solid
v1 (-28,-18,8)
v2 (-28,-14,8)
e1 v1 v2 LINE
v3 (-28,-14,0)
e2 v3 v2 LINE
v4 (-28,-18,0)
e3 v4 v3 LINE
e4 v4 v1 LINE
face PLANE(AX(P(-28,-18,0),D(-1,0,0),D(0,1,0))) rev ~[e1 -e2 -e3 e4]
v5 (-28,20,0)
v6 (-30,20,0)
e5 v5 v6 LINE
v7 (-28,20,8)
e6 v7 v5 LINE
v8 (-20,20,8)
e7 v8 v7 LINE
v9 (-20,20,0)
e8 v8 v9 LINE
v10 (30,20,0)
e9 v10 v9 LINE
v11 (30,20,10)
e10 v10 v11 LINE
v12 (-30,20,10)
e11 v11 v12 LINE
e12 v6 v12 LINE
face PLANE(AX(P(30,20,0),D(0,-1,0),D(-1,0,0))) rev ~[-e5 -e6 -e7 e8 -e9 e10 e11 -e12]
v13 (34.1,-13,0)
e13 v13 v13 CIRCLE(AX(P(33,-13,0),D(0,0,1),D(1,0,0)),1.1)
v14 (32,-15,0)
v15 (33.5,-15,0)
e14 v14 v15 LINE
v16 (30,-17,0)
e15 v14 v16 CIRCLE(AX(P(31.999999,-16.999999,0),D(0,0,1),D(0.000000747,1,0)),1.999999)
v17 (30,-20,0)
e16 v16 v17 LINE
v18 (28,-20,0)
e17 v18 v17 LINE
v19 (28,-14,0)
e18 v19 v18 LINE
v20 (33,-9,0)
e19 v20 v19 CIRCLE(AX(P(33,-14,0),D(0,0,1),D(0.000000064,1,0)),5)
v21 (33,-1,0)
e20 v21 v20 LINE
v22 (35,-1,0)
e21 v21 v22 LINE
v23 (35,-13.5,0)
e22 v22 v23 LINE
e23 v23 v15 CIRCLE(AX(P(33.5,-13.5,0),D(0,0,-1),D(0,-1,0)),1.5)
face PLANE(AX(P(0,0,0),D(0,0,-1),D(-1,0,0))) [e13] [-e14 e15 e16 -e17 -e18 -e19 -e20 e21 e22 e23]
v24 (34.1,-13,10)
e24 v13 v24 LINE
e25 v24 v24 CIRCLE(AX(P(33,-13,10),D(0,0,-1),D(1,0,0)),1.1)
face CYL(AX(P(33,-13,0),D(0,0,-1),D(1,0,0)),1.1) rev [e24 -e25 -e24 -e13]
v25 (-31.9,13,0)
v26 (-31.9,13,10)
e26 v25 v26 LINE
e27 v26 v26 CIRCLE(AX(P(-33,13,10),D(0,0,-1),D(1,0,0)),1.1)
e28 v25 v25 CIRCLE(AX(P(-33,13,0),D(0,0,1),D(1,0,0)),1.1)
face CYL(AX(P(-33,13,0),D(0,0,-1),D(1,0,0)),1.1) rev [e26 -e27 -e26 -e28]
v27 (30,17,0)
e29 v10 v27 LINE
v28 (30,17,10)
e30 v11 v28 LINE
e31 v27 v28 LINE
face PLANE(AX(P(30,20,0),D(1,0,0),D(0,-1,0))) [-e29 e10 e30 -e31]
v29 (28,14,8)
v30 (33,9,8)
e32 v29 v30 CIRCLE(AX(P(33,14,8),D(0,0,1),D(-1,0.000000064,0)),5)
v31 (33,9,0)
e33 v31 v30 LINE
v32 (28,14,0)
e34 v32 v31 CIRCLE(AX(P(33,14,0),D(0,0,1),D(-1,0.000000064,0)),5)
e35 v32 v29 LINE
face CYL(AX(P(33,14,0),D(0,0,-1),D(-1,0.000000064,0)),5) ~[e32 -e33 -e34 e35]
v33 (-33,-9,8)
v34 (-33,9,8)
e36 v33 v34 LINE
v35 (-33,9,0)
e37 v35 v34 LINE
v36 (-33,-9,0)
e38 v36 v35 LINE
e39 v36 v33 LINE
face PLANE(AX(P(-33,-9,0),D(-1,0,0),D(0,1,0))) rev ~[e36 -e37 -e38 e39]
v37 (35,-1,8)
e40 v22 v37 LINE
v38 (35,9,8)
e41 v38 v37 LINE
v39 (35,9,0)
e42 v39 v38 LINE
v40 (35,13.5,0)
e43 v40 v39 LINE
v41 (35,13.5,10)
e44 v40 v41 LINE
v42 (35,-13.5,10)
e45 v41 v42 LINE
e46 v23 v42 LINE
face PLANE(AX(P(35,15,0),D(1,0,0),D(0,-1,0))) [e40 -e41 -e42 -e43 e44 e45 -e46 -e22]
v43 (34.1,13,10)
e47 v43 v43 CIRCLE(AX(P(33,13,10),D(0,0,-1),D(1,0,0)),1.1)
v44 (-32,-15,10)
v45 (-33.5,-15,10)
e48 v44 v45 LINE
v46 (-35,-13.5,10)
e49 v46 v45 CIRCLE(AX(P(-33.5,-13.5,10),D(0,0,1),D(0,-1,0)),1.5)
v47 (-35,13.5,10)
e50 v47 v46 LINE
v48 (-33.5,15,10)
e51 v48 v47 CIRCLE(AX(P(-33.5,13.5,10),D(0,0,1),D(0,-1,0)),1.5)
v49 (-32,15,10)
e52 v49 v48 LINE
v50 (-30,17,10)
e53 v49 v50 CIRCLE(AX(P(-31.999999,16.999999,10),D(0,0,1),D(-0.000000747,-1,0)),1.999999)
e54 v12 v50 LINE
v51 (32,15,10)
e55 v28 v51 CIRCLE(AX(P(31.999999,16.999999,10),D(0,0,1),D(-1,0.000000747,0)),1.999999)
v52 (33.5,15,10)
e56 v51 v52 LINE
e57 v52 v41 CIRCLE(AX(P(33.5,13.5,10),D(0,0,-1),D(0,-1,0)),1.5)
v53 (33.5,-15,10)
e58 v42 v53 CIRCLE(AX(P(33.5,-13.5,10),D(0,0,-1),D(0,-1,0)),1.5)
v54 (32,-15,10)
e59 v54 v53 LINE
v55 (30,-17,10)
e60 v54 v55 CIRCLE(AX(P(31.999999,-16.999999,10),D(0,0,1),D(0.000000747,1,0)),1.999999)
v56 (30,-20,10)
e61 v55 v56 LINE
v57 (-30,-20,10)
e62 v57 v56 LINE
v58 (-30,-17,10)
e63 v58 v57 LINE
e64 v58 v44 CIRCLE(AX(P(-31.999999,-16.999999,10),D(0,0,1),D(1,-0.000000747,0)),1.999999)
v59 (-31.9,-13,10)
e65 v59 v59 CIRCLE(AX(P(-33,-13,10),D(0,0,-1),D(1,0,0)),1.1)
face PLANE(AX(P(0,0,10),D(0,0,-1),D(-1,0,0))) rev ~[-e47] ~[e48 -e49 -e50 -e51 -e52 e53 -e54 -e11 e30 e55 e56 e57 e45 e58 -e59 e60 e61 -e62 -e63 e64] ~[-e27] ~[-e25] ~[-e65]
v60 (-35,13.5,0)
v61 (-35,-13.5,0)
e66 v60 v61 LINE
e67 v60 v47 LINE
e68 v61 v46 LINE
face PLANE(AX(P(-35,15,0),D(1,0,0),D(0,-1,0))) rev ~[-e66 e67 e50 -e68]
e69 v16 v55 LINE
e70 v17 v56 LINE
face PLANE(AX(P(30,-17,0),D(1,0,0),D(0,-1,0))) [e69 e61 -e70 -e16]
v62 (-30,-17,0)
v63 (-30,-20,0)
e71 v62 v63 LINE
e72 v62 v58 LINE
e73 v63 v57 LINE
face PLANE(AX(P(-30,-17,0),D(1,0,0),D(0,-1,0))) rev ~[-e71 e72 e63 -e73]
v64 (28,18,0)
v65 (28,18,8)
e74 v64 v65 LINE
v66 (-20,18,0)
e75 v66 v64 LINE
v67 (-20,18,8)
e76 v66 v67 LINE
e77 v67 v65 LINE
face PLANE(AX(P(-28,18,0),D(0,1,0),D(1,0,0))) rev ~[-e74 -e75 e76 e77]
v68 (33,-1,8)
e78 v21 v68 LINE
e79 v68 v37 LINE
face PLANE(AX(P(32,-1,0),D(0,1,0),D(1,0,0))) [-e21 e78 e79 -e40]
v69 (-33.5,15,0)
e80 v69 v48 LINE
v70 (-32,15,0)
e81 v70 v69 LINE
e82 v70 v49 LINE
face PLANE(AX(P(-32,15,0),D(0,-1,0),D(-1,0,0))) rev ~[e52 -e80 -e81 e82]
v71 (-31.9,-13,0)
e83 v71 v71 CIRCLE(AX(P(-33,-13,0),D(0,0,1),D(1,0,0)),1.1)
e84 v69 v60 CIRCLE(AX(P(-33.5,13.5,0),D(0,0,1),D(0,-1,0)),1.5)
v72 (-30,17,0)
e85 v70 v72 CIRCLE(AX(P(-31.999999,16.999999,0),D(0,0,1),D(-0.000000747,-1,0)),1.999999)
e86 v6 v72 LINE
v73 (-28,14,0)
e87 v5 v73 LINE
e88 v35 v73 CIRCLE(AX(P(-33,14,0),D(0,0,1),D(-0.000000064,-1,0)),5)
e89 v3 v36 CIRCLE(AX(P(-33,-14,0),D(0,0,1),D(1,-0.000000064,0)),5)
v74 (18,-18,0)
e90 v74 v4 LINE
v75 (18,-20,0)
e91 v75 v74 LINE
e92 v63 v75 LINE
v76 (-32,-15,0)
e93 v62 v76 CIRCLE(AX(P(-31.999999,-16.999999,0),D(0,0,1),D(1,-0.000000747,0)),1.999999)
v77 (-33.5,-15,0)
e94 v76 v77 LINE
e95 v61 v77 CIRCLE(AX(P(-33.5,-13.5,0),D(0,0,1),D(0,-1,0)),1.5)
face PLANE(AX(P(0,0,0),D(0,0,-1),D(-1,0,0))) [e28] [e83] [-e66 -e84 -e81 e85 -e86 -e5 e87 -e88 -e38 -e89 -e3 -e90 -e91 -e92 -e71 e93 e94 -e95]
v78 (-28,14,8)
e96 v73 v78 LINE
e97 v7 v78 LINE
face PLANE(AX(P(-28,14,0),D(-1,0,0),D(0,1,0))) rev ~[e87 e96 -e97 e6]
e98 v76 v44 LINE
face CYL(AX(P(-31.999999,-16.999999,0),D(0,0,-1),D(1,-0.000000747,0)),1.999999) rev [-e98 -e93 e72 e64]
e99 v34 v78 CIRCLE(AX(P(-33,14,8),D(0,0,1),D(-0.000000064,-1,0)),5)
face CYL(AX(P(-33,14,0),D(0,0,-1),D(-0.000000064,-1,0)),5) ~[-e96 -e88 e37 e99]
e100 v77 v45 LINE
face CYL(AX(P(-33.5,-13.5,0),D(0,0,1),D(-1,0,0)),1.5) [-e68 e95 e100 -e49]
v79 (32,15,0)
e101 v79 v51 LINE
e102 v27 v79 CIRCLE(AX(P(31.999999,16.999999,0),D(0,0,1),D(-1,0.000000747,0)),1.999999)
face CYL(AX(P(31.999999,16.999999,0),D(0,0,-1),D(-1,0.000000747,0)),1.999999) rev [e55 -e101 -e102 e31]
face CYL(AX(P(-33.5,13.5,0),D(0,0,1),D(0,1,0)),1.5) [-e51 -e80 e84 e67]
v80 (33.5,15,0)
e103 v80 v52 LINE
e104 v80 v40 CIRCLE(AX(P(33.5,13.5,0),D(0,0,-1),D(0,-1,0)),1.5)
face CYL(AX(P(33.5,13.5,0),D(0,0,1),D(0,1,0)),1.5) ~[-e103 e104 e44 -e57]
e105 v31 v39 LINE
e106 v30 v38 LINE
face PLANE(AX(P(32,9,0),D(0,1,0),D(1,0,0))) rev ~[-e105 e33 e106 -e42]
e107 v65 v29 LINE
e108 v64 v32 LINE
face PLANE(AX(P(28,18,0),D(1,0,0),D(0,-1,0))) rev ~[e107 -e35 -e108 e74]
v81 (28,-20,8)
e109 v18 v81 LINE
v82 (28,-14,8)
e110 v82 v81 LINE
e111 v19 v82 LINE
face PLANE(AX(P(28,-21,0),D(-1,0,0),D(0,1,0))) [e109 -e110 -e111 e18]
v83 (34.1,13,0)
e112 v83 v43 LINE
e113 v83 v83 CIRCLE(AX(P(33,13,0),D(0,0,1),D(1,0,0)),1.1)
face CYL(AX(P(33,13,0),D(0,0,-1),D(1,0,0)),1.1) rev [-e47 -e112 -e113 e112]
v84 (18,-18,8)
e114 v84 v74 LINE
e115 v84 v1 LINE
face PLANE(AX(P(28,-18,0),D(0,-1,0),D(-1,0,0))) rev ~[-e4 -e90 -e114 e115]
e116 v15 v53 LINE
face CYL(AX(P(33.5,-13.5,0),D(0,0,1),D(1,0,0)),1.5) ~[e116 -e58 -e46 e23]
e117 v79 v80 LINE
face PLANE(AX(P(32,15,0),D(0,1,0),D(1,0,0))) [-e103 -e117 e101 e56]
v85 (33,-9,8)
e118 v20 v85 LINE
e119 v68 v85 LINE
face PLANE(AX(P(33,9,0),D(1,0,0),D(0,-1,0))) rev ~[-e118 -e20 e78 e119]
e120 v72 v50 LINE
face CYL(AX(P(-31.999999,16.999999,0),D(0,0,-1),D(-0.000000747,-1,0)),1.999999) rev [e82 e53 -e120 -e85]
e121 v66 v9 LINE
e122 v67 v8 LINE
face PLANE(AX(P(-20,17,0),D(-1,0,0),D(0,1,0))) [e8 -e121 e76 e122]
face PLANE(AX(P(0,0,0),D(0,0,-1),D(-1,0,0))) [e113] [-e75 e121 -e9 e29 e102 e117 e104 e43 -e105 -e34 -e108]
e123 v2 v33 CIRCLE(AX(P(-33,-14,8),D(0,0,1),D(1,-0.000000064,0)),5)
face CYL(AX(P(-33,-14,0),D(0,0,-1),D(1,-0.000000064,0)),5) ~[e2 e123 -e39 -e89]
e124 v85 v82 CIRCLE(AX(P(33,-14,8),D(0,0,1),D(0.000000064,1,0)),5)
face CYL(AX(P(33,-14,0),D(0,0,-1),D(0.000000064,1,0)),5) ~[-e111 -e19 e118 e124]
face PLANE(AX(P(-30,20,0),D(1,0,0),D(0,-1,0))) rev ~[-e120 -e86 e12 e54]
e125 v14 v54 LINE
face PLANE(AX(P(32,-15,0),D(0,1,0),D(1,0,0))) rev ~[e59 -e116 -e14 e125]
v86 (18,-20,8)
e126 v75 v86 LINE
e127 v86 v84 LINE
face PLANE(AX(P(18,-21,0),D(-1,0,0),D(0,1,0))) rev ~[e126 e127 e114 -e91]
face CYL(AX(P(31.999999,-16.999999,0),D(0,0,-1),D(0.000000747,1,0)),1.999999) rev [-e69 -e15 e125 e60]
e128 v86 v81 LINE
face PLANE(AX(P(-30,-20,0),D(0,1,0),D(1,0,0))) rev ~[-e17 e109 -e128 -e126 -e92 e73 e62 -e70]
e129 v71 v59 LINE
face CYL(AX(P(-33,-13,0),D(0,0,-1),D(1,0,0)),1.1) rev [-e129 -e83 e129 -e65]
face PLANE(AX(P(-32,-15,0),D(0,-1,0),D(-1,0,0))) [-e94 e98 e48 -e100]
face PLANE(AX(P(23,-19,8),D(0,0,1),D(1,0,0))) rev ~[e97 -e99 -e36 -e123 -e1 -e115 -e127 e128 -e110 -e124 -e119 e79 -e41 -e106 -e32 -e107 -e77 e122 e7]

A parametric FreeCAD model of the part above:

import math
import FreeCAD as App
import Part
import Sketcher

V = App.Vector


def edges_at(feature, points):
    """Names of the edges that pass closest to the given points."""
    edges = feature.Shape.Edges
    near = lambda p: min(range(len(edges)), key=lambda i: edges[i].distToShape(Part.Vertex(*p))[0])
    return sorted({f"Edge{near(p) + 1}" for p in points})

doc = App.newDocument("Part")
body = doc.addObject("PartDesign::Body", "Body")

# Sketch on XY plane
sketch1 = body.newObject("Sketcher::SketchObject", "Sketch")
sketch1.AttachmentSupport = (doc.getObject("XY_Plane"), [""])
sketch1.MapMode = "FlatFace"
sketch1.addGeometry([
    Part.ArcOfCircle(Part.Circle(V(-32, -17, 0), V(0, 0, 1), 2), math.radians(0), math.radians(90)),  # 0
    Part.LineSegment(V(-30, -17, 0), V(-30, -20, 0)),  # 1
    Part.LineSegment(V(-30, -20, 0), V(30, -20, 0)),  # 2
    Part.LineSegment(V(30, -20, 0), V(30, -17, 0)),  # 3
    Part.ArcOfCircle(Part.Circle(V(32, -17, 0), V(0, 0, 1), 2), math.radians(90), math.radians(180)),  # 4
    Part.LineSegment(V(32, -15, 0), V(35, -15, 0)),  # 5
    Part.LineSegment(V(35, -15, 0), V(35, 15, 0)),  # 6
    Part.LineSegment(V(35, 15, 0), V(32, 15, 0)),  # 7
    Part.ArcOfCircle(Part.Circle(V(32, 17, 0), V(0, 0, 1), 2), math.radians(180), math.radians(270)),  # 8
    Part.LineSegment(V(30, 17, 0), V(30, 20, 0)),  # 9
    Part.LineSegment(V(30, 20, 0), V(-30, 20, 0)),  # 10
    Part.LineSegment(V(-30, 20, 0), V(-30, 17, 0)),  # 11
    Part.ArcOfCircle(Part.Circle(V(-32, 17, 0), V(0, 0, 1), 2), math.radians(-90), math.radians(0)),  # 12
    Part.LineSegment(V(-32, 15, 0), V(-35, 15, 0)),  # 13
    Part.LineSegment(V(-35, 15, 0), V(-35, -15, 0)),  # 14
    Part.LineSegment(V(-35, -15, 0), V(-32, -15, 0)),  # 15
], False)
sketch1.addConstraint([
    Sketcher.Constraint("Tangent", 0, 1, 1, 1),
    Sketcher.Constraint("Coincident", 1, 2, 2, 1),
    Sketcher.Constraint("Coincident", 2, 2, 3, 1),
    Sketcher.Constraint("Tangent", 3, 2, 4, 2),
    Sketcher.Constraint("Tangent", 4, 1, 5, 1),
    Sketcher.Constraint("Coincident", 5, 2, 6, 1),
    Sketcher.Constraint("Coincident", 6, 2, 7, 1),
    Sketcher.Constraint("Tangent", 7, 2, 8, 2),
    Sketcher.Constraint("Tangent", 8, 1, 9, 1),
    Sketcher.Constraint("Coincident", 9, 2, 10, 1),
    Sketcher.Constraint("Coincident", 10, 2, 11, 1),
    Sketcher.Constraint("Tangent", 11, 2, 12, 2),
    Sketcher.Constraint("Tangent", 12, 1, 13, 1),
    Sketcher.Constraint("Coincident", 13, 2, 14, 1),
    Sketcher.Constraint("Coincident", 14, 2, 15, 1),
    Sketcher.Constraint("Tangent", 15, 2, 0, 2),
    Sketcher.Constraint("Vertical", 1),
    Sketcher.Constraint("Horizontal", 2),
    Sketcher.Constraint("Vertical", 3),
    Sketcher.Constraint("Horizontal", 5),
    Sketcher.Constraint("Vertical", 6),
    Sketcher.Constraint("Horizontal", 7),
    Sketcher.Constraint("Vertical", 9),
    Sketcher.Constraint("Horizontal", 10),
    Sketcher.Constraint("Vertical", 11),
    Sketcher.Constraint("Horizontal", 13),
    Sketcher.Constraint("Vertical", 14),
    Sketcher.Constraint("Horizontal", 15),
    Sketcher.Constraint("Equal", 0, 4),
    Sketcher.Constraint("Equal", 4, 8),
    Sketcher.Constraint("Equal", 8, 12),
    Sketcher.Constraint("Symmetric", 0, 3, 8, 3, -1, 1),
    Sketcher.Constraint("Symmetric", 4, 3, 12, 3, -1, 1),
    Sketcher.Constraint("Symmetric", 0, 3, 4, 3, -2),
    Sketcher.Constraint("Equal", 7, 13),
    Sketcher.Constraint("Equal", 15, 1),
    Sketcher.Constraint("Equal", 3, 9),
    Sketcher.Constraint("Radius", 0, 1.999999),
    Sketcher.Constraint("DistanceX", 2, 1, 2, 2, 60.0),
    Sketcher.Constraint("DistanceX", 5, 1, 5, 2, 3.0),
    Sketcher.Constraint("DistanceY", 6, 1, 6, 2, 30.0),
])
pad1 = body.newObject("PartDesign::Pad", "Pad")
pad1.Profile = sketch1
pad1.Length = 10

# Sketch on XY plane
sketch2 = body.newObject("Sketcher::SketchObject", "Sketch001")
sketch2.AttachmentSupport = (doc.getObject("XY_Plane"), [""])
sketch2.MapMode = "FlatFace"
sketch2.addGeometry([
    Part.Circle(V(33, 13, 0), V(0, 0, 1), 1.1),
    Part.Circle(V(33, -13, 0), V(0, 0, 1), 1.1),
    Part.Circle(V(-33, -13, 0), V(0, 0, 1), 1.1),
    Part.Circle(V(-33, 13, 0), V(0, 0, 1), 1.1),
], False)
sketch2.addConstraint([
    Sketcher.Constraint("Equal", 0, 1),
    Sketcher.Constraint("Equal", 1, 2),
    Sketcher.Constraint("Equal", 2, 3),
    Sketcher.Constraint("Symmetric", 0, 3, 2, 3, -1, 1),
    Sketcher.Constraint("Symmetric", 1, 3, 3, 3, -1, 1),
    Sketcher.Constraint("Symmetric", 1, 3, 2, 3, -2),
    Sketcher.Constraint("Diameter", 0, 2.2),
    Sketcher.Constraint("DistanceX", -1, 1, 0, 3, 33.0),
    Sketcher.Constraint("DistanceY", -1, 1, 0, 3, 13.0),
])
pocket1 = body.newObject("PartDesign::Pocket", "Pocket")
pocket1.Profile = sketch2
pocket1.Length = 25
pocket1.Reversed = True

# Sketch on XY plane
sketch3 = body.newObject("Sketcher::SketchObject", "Sketch002")
sketch3.AttachmentSupport = (doc.getObject("XY_Plane"), [""])
sketch3.MapMode = "FlatFace"
sketch3.addGeometry([
    Part.LineSegment(V(-28, -18, 0), V(28, -18, 0)),  # 0
    Part.LineSegment(V(28, -18, 0), V(28, -14, 0)),  # 1
    Part.ArcOfCircle(Part.Circle(V(33, -14, 0), V(0, 0, 1), 5), math.radians(90), math.radians(180)),  # 2
    Part.LineSegment(V(33, -9, 0), V(33, 9, 0)),  # 3
    Part.ArcOfCircle(Part.Circle(V(33, 14, 0), V(0, 0, 1), 5), math.radians(180), math.radians(270)),  # 4
    Part.LineSegment(V(28, 14, 0), V(28, 18, 0)),  # 5
    Part.LineSegment(V(28, 18, 0), V(-28, 18, 0)),  # 6
    Part.LineSegment(V(-28, 18, 0), V(-28, 14, 0)),  # 7
    Part.ArcOfCircle(Part.Circle(V(-33, 14, 0), V(0, 0, 1), 5), math.radians(-90), math.radians(0)),  # 8
    Part.LineSegment(V(-33, 9, 0), V(-33, -9, 0)),  # 9
    Part.ArcOfCircle(Part.Circle(V(-33, -14, 0), V(0, 0, 1), 5), math.radians(0), math.radians(90)),  # 10
    Part.LineSegment(V(-28, -14, 0), V(-28, -18, 0)),  # 11
], False)
sketch3.addConstraint([
    Sketcher.Constraint("Coincident", 0, 2, 1, 1),
    Sketcher.Constraint("Tangent", 1, 2, 2, 2),
    Sketcher.Constraint("Coincident", 2, 1, 3, 1),
    Sketcher.Constraint("Coincident", 3, 2, 4, 2),
    Sketcher.Constraint("Tangent", 4, 1, 5, 1),
    Sketcher.Constraint("Coincident", 5, 2, 6, 1),
    Sketcher.Constraint("Coincident", 6, 2, 7, 1),
    Sketcher.Constraint("Tangent", 7, 2, 8, 2),
    Sketcher.Constraint("Coincident", 8, 1, 9, 1),
    Sketcher.Constraint("Coincident", 9, 2, 10, 2),
    Sketcher.Constraint("Tangent", 10, 1, 11, 1),
    Sketcher.Constraint("Coincident", 11, 2, 0, 1),
    Sketcher.Constraint("Horizontal", 0),
    Sketcher.Constraint("Vertical", 1),
    Sketcher.Constraint("Vertical", 3),
    Sketcher.Constraint("Vertical", 5),
    Sketcher.Constraint("Horizontal", 6),
    Sketcher.Constraint("Vertical", 7),
    Sketcher.Constraint("Vertical", 9),
    Sketcher.Constraint("Vertical", 11),
    Sketcher.Constraint("Equal", 2, 4),
    Sketcher.Constraint("Equal", 4, 8),
    Sketcher.Constraint("Equal", 8, 10),
    Sketcher.Constraint("Symmetric", 2, 3, 8, 3, -1, 1),
    Sketcher.Constraint("Symmetric", 4, 3, 10, 3, -1, 1),
    Sketcher.Constraint("Symmetric", 4, 3, 8, 3, -2),
    Sketcher.Constraint("Vertical", 4, 3, 2, 1),
    Sketcher.Constraint("Vertical", 10, 3, 8, 1),
    Sketcher.Constraint("Equal", 1, 5),
    Sketcher.Constraint("Radius", 2, 5.0),
    Sketcher.Constraint("DistanceX", 0, 1, 0, 2, 56.0),
    Sketcher.Constraint("DistanceY", 1, 1, 1, 2, 4.0),
    Sketcher.Constraint("DistanceY", 3, 1, 3, 2, 18.0),
])
pocket2 = body.newObject("PartDesign::Pocket", "Pocket001")
pocket2.Profile = sketch3
pocket2.Length = 8
pocket2.Reversed = True

# Sketch on XY plane
sketch4 = body.newObject("Sketcher::SketchObject", "Sketch003")
sketch4.AttachmentSupport = (doc.getObject("XY_Plane"), [""])
sketch4.MapMode = "FlatFace"
sketch4.addGeometry([
    Part.LineSegment(V(-28, 21, 0), V(-28, 17, 0)),  # 0
    Part.LineSegment(V(-28, 17, 0), V(-20, 17, 0)),  # 1
    Part.LineSegment(V(-20, 17, 0), V(-20, 21, 0)),  # 2
    Part.LineSegment(V(-20, 21, 0), V(-28, 21, 0)),  # 3
    Part.LineSegment(V(18, -17, 0), V(18, -21, 0)),  # 4
    Part.LineSegment(V(18, -21, 0), V(28, -21, 0)),  # 5
    Part.LineSegment(V(28, -21, 0), V(28, -17, 0)),  # 6
    Part.LineSegment(V(28, -17, 0), V(18, -17, 0)),  # 7
    Part.LineSegment(V(32, 9, 0), V(32, -1, 0)),  # 8
    Part.LineSegment(V(32, -1, 0), V(36, -1, 0)),  # 9
    Part.LineSegment(V(36, -1, 0), V(36, 9, 0)),  # 10
    Part.LineSegment(V(36, 9, 0), V(32, 9, 0)),  # 11
], False)
sketch4.addConstraint([
    Sketcher.Constraint("Coincident", 0, 2, 1, 1),
    Sketcher.Constraint("Coincident", 1, 2, 2, 1),
    Sketcher.Constraint("Coincident", 2, 2, 3, 1),
    Sketcher.Constraint("Coincident", 3, 2, 0, 1),
    Sketcher.Constraint("Coincident", 4, 2, 5, 1),
    Sketcher.Constraint("Coincident", 5, 2, 6, 1),
    Sketcher.Constraint("Coincident", 6, 2, 7, 1),
    Sketcher.Constraint("Coincident", 7, 2, 4, 1),
    Sketcher.Constraint("Coincident", 8, 2, 9, 1),
    Sketcher.Constraint("Coincident", 9, 2, 10, 1),
    Sketcher.Constraint("Coincident", 10, 2, 11, 1),
    Sketcher.Constraint("Coincident", 11, 2, 8, 1),
    Sketcher.Constraint("Vertical", 0),
    Sketcher.Constraint("Horizontal", 1),
    Sketcher.Constraint("Vertical", 2),
    Sketcher.Constraint("Horizontal", 3),
    Sketcher.Constraint("Vertical", 4),
    Sketcher.Constraint("Horizontal", 5),
    Sketcher.Constraint("Vertical", 6),
    Sketcher.Constraint("Horizontal", 7),
    Sketcher.Constraint("Vertical", 8),
    Sketcher.Constraint("Horizontal", 9),
    Sketcher.Constraint("Vertical", 10),
    Sketcher.Constraint("Horizontal", 11),
    Sketcher.Constraint("Symmetric", 3, 2, 5, 2, -1, 1),
    Sketcher.Constraint("Equal", 11, 0),
    Sketcher.Constraint("Equal", 2, 4),
    Sketcher.Constraint("Equal", 7, 8),
    Sketcher.Constraint("DistanceX", 1, 1, 1, 2, 8.0),
    Sketcher.Constraint("DistanceX", 5, 1, 5, 2, 10.0),
    Sketcher.Constraint("DistanceX", 9, 1, 9, 2, 4.0),
    Sketcher.Constraint("DistanceX", 0, 2, -1, 1, 28.0),
    Sketcher.Constraint("DistanceY", -1, 1, 0, 2, 17.0),
    Sketcher.Constraint("DistanceX", -1, 1, 8, 2, 32.0),
    Sketcher.Constraint("DistanceY", 8, 2, -1, 1, 1.0),
])
pocket3 = body.newObject("PartDesign::Pocket", "Pocket002")
pocket3.Profile = sketch4
pocket3.Length = 8
pocket3.Reversed = True
doc.recompute()

fillet = body.newObject("PartDesign::Fillet", "Fillet")
fillet.Base = (pocket3, edges_at(pocket3, [
    (35, -15, 5),
    (35, 15, 5),
    (-35, -15, 5),
    (-35, 15, 5),
]))
fillet.Radius = 1.5

doc.recompute()
